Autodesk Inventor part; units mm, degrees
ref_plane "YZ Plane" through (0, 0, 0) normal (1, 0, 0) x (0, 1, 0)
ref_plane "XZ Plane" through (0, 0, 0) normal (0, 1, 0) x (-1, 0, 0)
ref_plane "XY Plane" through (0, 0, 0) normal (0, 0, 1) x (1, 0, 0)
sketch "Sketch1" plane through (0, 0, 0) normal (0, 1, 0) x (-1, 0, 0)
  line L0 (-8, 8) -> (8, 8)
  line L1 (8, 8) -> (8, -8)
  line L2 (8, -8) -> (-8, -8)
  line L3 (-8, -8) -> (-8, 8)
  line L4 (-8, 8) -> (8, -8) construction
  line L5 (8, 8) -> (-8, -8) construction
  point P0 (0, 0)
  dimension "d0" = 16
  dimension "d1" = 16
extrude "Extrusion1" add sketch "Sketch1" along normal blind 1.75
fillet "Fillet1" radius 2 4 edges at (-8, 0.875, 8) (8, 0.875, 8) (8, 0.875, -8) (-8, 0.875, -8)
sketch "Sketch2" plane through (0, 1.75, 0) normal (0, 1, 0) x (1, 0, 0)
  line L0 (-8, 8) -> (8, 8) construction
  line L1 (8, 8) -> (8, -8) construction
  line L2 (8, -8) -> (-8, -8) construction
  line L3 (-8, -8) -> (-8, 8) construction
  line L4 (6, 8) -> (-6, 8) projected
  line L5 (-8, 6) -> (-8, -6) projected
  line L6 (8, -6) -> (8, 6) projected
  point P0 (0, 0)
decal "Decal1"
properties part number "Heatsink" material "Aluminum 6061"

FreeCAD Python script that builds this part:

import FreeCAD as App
import Part
import Sketcher
from FreeCAD import Vector
Q = App.Units.Quantity


def edges_at(feature, points):
    """Names of the edges that pass closest to the given points."""
    edges = feature.Shape.Edges
    near = lambda p: min(range(len(edges)), key=lambda i: edges[i].distToShape(Part.Vertex(*p))[0])
    return sorted({f"Edge{near(p) + 1}" for p in points})


def add_polygon(sketch, points):
    """Adds a closed chain of lines whose ends are joined by coincident constraints."""
    first, n = sketch.GeometryCount, len(points)
    for a, b in zip(points, points[1:] + points[:1]):
        sketch.addGeometry(Part.LineSegment(App.Vector(*a, 0), App.Vector(*b, 0)), False)
    for i in range(n):
        sketch.addConstraint(Sketcher.Constraint("Coincident", first + i, 2, first + (i + 1) % n, 1))

doc = App.newDocument("Part")
params = doc.addObject("Spreadsheet::Sheet", "Params")
for row, (alias, value) in enumerate([
    ("sketch1_width", "16 mm"),
    ("pad1_length", "1.75 mm"),
    ("fillet_radius", "2 mm"),
], start=1):
    params.set(f"A{row}", alias)
    params.set(f"B{row}", "=" + value)
    params.setAlias(f"B{row}", alias)

body = doc.addObject("PartDesign::Body", "Body")

# Sketch on XZ plane
sketch1 = body.newObject("Sketcher::SketchObject", "Sketch")
sketch1.AttachmentSupport = (doc.getObject("XZ_Plane"), [""])
sketch1.MapMode = "FlatFace"
add_polygon(sketch1, [(-8, 8), (8, 8), (8, -8), (-8, -8)])  # lines 0-3
sketch1.addConstraint(Sketcher.Constraint("Horizontal", 0))
sketch1.addConstraint(Sketcher.Constraint("Vertical", 1))
sketch1.addConstraint(Sketcher.Constraint("Horizontal", 2))
sketch1.addConstraint(Sketcher.Constraint("Vertical", 3))
sketch1.addConstraint(Sketcher.Constraint("Symmetric", 0, 2, 2, 2, -1, 1))
sketch1.addConstraint(Sketcher.Constraint("Equal", 2, 1))
sketch1.addConstraint(Sketcher.Constraint("DistanceX", 0, 1, 0, 2, Q("16 mm")))
sketch1.setExpression("Constraints[10]", "Params.sketch1_width")
pad1 = body.newObject("PartDesign::Pad", "Pad")
pad1.Profile = sketch1
pad1.setExpression("Length", "Params.pad1_length")
pad1.Reversed = True
doc.recompute()

fillet = body.newObject("PartDesign::Fillet", "Fillet")
fillet.Base = (pad1, edges_at(pad1, [
    (-8, 0.875, 8),
    (8, 0.875, 8),
    (8, 0.875, -8),
    (-8, 0.875, -8),
]))
fillet.setExpression("Radius", "Params.fillet_radius")

doc.recompute()
